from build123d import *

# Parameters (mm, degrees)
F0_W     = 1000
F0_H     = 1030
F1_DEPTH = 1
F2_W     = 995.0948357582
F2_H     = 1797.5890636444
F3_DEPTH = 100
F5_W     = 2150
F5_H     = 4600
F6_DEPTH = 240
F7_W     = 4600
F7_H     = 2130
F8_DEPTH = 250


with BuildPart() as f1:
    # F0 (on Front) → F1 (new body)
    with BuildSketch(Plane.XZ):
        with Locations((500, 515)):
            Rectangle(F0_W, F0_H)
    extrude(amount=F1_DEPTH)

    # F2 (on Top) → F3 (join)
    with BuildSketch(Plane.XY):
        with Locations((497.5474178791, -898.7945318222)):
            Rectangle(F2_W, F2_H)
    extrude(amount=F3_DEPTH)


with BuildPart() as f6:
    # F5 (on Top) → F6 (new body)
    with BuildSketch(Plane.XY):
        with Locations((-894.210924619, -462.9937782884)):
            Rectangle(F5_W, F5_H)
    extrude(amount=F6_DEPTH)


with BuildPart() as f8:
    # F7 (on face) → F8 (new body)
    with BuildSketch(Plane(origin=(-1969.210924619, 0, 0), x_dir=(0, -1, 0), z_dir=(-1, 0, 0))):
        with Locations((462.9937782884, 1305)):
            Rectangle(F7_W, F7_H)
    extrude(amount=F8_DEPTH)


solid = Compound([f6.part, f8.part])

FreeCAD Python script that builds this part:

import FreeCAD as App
import Part
import Sketcher
from FreeCAD import Vector


def add_polygon(sketch, points):
    """Adds a closed chain of lines whose ends are joined by coincident constraints."""
    first, n = sketch.GeometryCount, len(points)
    for a, b in zip(points, points[1:] + points[:1]):
        sketch.addGeometry(Part.LineSegment(App.Vector(*a, 0), App.Vector(*b, 0)), False)
    for i in range(n):
        sketch.addConstraint(Sketcher.Constraint("Coincident", first + i, 2, first + (i + 1) % n, 1))

doc = App.newDocument("Part")
body = doc.addObject("PartDesign::Body", "Body")

# Sketch on XZ plane
sketch1 = doc.addObject("Sketcher::SketchObject", "Sketch")
body.addObject(sketch1)
sketch1.AttachmentSupport = (doc.XZ_Plane, [""])
sketch1.MapMode = "FlatFace"
add_polygon(sketch1, [(0, 1030), (0, 0), (1000, 0), (1000, 1030)])  # lines 0-3
sketch1.addConstraint([
    Sketcher.Constraint("Vertical", 0),
    Sketcher.Constraint("Horizontal", 1),
    Sketcher.Constraint("Vertical", 2),
    Sketcher.Constraint("Horizontal", 3),
    Sketcher.Constraint("Coincident", 0, 2, -1, 1),
    Sketcher.Constraint("DistanceX", 1, 1, 1, 2, 1000.0),
    Sketcher.Constraint("DistanceY", 0, 2, 0, 1, 1030.0),
])
pad1 = doc.addObject("PartDesign::Pad", "Pad")
body.addObject(pad1)
pad1.Profile = sketch1
pad1.Length = 1

# Sketch on XY plane
sketch2 = doc.addObject("Sketcher::SketchObject", "Sketch001")
body.addObject(sketch2)
sketch2.AttachmentSupport = (doc.XY_Plane, [""])
sketch2.MapMode = "FlatFace"
add_polygon(sketch2, [(0, 0), (0, -1798), (995, -1798), (995, 0)])  # lines 0-3
sketch2.addConstraint([
    Sketcher.Constraint("Vertical", 0),
    Sketcher.Constraint("Horizontal", 1),
    Sketcher.Constraint("Vertical", 2),
    Sketcher.Constraint("Horizontal", 3),
    Sketcher.Constraint("Coincident", 3, 2, -1, 1),
    Sketcher.Constraint("DistanceX", 1, 1, 1, 2, 995.094836),
    Sketcher.Constraint("DistanceY", 0, 2, 0, 1, 1797.589064),
])
pad2 = doc.addObject("PartDesign::Pad", "Pad001")
body.addObject(pad2)
pad2.Profile = sketch2
pad2.Length = 100
body2 = doc.addObject("PartDesign::Body", "Body001")

# Sketch on XY plane
sketch3 = doc.addObject("Sketcher::SketchObject", "Sketch002")
body2.addObject(sketch3)
sketch3.AttachmentSupport = (doc.getObject("XY_Plane001"), [""])
sketch3.MapMode = "FlatFace"
add_polygon(sketch3, [(-1969, 1837), (-1969, -2763), (181, -2763), (181, 1837)])  # lines 0-3
sketch3.addConstraint([
    Sketcher.Constraint("Vertical", 0),
    Sketcher.Constraint("Horizontal", 1),
    Sketcher.Constraint("Vertical", 2),
    Sketcher.Constraint("Horizontal", 3),
    Sketcher.Constraint("DistanceX", 1, 1, 1, 2, 2150.0),
    Sketcher.Constraint("DistanceY", 0, 2, 0, 1, 4600.0),
    Sketcher.Constraint("DistanceY", 0, 2, -1, 1, 2762.993778),
    Sketcher.Constraint("DistanceX", 0, 2, -1, 1, 1969.210925),
])
pad3 = doc.addObject("PartDesign::Pad", "Pad002")
body2.addObject(pad3)
pad3.Profile = sketch3
pad3.Length = 240
body3 = doc.addObject("PartDesign::Body", "Body002")

# Sketch on YZ plane
sketch4 = doc.addObject("Sketcher::SketchObject", "Sketch003")
body3.addObject(sketch4)
sketch4.AttachmentSupport = (doc.getObject("YZ_Plane002"), [""])
sketch4.MapMode = "FlatFace"
sketch4.AttachmentOffset = App.Placement(Vector(0, 0, -1969.210925), App.Rotation())
add_polygon(sketch4, [(1837, 2370), (1837, 240), (-2763, 240), (-2763, 2370)])  # lines 0-3
sketch4.addConstraint([
    Sketcher.Constraint("Vertical", 0),
    Sketcher.Constraint("Horizontal", 1),
    Sketcher.Constraint("Vertical", 2),
    Sketcher.Constraint("Horizontal", 3),
    Sketcher.Constraint("DistanceX", 1, 2, 1, 1, 4600.0),
    Sketcher.Constraint("DistanceY", 0, 2, 0, 1, 2130.0),
    Sketcher.Constraint("DistanceY", -1, 1, 0, 2, 240.0),
    Sketcher.Constraint("DistanceX", -1, 1, 0, 2, 1837.006222),
])
pad4 = doc.addObject("PartDesign::Pad", "Pad003")
body3.addObject(pad4)
pad4.Profile = sketch4
pad4.Length = 250
pad4.Reversed = True
body.Visibility = False

doc.recompute()
